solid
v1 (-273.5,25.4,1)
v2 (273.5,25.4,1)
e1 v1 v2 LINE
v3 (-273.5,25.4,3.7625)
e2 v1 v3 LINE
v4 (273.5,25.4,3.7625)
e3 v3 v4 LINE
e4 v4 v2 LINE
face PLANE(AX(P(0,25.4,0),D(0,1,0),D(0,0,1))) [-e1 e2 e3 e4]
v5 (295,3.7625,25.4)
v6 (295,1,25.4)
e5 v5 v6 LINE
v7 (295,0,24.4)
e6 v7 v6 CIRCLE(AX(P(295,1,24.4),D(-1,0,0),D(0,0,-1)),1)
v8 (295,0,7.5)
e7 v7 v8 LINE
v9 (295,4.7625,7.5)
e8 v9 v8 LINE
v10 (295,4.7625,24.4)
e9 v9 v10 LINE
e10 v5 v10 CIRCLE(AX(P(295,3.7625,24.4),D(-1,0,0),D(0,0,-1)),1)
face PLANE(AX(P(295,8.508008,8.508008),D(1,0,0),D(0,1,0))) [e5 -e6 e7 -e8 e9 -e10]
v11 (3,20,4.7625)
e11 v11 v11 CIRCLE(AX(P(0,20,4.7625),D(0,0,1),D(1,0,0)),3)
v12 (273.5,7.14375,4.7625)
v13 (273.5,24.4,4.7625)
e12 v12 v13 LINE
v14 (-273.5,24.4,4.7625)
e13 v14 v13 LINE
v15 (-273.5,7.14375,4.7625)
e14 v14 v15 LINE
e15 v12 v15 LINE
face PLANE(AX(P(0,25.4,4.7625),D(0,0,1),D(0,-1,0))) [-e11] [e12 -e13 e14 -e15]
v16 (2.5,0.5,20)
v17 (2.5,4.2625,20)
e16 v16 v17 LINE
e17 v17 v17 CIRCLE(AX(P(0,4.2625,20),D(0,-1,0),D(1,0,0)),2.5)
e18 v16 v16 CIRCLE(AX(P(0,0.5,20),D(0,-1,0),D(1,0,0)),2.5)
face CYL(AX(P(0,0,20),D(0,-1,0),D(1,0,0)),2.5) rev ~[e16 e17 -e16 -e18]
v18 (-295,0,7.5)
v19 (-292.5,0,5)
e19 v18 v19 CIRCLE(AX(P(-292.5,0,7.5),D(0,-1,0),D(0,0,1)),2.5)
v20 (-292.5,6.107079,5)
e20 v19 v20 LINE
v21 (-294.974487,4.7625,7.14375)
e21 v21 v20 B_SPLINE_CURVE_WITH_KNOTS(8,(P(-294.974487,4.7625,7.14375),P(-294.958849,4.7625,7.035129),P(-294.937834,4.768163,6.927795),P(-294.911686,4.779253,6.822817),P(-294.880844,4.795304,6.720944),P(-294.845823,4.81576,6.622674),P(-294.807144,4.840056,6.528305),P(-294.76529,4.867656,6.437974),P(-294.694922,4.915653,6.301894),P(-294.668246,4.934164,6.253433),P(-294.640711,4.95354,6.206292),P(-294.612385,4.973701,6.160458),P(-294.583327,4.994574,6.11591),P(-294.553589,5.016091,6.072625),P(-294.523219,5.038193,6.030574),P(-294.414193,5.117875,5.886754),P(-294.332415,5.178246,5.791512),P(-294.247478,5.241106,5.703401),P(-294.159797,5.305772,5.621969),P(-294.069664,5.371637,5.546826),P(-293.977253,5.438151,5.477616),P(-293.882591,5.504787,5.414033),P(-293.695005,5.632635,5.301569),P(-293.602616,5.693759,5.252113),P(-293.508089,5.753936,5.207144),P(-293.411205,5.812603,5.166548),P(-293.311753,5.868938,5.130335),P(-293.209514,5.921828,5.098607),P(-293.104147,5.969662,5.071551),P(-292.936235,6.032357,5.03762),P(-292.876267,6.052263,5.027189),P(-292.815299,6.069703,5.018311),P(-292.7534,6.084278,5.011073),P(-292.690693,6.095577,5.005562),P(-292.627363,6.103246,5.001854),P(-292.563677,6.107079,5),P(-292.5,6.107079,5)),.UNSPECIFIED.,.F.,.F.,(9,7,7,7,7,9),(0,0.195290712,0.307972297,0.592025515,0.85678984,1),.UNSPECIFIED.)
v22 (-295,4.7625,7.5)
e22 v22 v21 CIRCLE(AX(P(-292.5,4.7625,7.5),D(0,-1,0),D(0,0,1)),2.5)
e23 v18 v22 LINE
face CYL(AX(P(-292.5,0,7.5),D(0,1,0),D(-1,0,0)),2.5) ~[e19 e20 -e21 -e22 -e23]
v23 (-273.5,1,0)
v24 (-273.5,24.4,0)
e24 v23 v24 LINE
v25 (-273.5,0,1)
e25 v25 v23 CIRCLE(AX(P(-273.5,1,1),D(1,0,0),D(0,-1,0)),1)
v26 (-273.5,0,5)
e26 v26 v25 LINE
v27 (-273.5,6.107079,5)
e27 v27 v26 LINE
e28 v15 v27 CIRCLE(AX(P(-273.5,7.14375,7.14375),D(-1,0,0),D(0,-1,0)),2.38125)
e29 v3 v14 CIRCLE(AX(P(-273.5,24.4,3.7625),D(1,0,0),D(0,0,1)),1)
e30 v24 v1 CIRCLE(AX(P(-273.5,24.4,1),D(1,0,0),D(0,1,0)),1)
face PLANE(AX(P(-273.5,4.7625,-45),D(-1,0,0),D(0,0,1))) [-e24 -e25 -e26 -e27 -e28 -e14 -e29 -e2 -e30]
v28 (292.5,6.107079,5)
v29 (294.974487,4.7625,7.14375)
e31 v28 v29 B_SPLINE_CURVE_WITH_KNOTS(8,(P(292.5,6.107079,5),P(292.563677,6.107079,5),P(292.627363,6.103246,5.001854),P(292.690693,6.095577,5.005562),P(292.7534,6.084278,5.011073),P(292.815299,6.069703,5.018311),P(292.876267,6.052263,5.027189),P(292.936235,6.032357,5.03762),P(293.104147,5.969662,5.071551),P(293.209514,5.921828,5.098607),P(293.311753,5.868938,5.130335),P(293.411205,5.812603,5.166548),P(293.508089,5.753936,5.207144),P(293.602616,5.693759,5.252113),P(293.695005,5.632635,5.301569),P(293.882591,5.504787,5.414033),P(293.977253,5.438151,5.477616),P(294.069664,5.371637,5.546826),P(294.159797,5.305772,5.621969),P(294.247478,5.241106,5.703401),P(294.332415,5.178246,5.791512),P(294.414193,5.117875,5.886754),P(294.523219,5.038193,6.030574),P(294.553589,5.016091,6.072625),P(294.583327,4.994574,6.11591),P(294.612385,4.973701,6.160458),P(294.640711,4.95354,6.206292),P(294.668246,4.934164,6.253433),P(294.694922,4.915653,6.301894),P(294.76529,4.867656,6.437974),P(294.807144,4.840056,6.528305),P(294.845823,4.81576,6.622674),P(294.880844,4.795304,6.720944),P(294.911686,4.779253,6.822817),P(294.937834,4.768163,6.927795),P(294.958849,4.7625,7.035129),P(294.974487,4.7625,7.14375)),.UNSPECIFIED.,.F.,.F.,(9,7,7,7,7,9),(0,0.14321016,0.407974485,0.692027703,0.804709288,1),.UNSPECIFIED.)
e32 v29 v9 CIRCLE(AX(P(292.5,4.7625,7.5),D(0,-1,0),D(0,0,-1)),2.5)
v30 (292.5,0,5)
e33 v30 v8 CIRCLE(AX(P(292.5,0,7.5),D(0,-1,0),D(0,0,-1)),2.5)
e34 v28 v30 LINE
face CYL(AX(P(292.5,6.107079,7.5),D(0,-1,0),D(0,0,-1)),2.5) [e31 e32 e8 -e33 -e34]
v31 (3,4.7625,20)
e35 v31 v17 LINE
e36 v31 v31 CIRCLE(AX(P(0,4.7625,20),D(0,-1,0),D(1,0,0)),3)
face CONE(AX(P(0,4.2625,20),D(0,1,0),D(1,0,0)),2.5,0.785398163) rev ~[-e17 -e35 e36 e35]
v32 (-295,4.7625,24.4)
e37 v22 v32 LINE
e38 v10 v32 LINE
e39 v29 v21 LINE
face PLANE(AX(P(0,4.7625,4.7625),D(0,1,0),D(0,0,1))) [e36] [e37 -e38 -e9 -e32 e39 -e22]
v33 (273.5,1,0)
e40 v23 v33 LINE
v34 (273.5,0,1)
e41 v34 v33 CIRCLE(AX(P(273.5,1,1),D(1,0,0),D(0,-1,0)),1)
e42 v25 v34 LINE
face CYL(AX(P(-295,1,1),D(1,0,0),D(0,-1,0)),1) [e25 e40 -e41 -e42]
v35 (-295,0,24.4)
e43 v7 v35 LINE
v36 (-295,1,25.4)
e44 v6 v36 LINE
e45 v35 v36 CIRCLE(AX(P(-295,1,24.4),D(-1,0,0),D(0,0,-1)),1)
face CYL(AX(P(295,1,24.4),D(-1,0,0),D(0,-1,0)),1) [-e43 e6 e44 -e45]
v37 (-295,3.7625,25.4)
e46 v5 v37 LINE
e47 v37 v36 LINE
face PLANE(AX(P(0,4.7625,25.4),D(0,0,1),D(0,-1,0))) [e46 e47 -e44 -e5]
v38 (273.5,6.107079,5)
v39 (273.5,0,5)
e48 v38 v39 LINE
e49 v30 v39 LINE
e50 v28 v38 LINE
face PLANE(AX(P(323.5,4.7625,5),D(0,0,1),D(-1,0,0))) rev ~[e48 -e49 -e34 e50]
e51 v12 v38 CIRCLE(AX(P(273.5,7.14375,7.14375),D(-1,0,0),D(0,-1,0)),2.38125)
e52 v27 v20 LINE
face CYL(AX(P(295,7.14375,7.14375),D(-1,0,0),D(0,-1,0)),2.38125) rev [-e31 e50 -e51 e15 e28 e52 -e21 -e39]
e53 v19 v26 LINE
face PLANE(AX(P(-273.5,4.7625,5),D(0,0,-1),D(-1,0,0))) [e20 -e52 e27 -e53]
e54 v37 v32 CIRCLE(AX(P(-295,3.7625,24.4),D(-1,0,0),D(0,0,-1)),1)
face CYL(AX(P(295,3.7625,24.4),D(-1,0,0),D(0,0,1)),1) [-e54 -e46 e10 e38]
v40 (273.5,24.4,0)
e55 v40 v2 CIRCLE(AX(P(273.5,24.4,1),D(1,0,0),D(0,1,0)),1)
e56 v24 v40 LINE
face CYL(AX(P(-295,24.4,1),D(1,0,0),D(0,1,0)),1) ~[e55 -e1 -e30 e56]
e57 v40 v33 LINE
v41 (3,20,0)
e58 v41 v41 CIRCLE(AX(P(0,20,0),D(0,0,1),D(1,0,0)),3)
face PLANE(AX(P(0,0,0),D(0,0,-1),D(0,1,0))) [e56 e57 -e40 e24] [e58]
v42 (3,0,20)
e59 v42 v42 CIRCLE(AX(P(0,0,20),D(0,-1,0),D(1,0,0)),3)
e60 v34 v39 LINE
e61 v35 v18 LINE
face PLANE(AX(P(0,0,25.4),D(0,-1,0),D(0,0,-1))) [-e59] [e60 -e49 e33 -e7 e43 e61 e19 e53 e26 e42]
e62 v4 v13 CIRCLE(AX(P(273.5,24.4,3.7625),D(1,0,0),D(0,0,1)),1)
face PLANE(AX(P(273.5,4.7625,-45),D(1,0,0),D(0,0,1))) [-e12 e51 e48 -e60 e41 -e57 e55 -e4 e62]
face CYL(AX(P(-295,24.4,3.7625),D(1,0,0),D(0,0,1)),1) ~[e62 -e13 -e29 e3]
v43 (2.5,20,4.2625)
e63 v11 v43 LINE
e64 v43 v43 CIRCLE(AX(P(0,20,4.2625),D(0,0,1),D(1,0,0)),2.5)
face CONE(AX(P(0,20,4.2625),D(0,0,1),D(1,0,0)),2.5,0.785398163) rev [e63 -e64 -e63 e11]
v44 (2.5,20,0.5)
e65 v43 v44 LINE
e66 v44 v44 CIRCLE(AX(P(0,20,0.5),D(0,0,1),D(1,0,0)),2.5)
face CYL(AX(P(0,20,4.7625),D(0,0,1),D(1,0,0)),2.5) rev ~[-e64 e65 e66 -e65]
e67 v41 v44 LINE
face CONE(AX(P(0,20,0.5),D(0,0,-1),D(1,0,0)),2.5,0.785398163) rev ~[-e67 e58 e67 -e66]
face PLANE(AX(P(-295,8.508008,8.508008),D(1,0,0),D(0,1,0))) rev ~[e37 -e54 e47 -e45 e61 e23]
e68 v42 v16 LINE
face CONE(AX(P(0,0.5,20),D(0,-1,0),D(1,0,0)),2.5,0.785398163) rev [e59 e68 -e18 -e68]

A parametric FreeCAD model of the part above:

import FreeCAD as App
import Part
import Sketcher
from FreeCAD import Vector


def edges_at(feature, points):
    """Names of the edges that pass closest to the given points."""
    edges = feature.Shape.Edges
    near = lambda p: min(range(len(edges)), key=lambda i: edges[i].distToShape(Part.Vertex(*p))[0])
    return sorted({f"Edge{near(p) + 1}" for p in points})


def add_polygon(sketch, points):
    """Adds a closed chain of lines whose ends are joined by coincident constraints."""
    first, n = sketch.GeometryCount, len(points)
    for a, b in zip(points, points[1:] + points[:1]):
        sketch.addGeometry(Part.LineSegment(App.Vector(*a, 0), App.Vector(*b, 0)), False)
    for i in range(n):
        sketch.addConstraint(Sketcher.Constraint("Coincident", first + i, 2, first + (i + 1) % n, 1))

doc = App.newDocument("Part")
body = doc.addObject("PartDesign::Body", "Body")

sketch1 = body.newObject("Sketcher::SketchObject", "Sketch")
sketch1.AttachmentSupport = (doc.getObject("YZ_Plane"), [""])
sketch1.MapMode = "FlatFace"
add_polygon(sketch1, [(0, 25.4), (0, 0), (25.4, 0), (25.4, 4.8), (4.8, 4.8), (4.8, 25.4)])
sketch1.addConstraint(Sketcher.Constraint("Vertical", 0))
sketch1.addConstraint(Sketcher.Constraint("Horizontal", 1))
sketch1.addConstraint(Sketcher.Constraint("Vertical", 2))
sketch1.addConstraint(Sketcher.Constraint("Horizontal", 3))
sketch1.addConstraint(Sketcher.Constraint("Vertical", 4))
sketch1.addConstraint(Sketcher.Constraint("Horizontal", 5))
sketch1.addConstraint(Sketcher.Constraint("Coincident", 0, 2, -1, 1))
sketch1.addConstraint(Sketcher.Constraint("Equal", 1, 0))
sketch1.addConstraint(Sketcher.Constraint("Equal", 5, 2))
sketch1.addConstraint(Sketcher.Constraint("DistanceX", 1, 1, 1, 2, 25.4))
sketch1.addConstraint(Sketcher.Constraint("DistanceX", 3, 2, 3, 1, 20.6375))
pad1 = body.newObject("PartDesign::Pad", "Pad")
pad1.Profile = sketch1
pad1.Length = 590
pad1.Midplane = True
doc.recompute()

fillet = body.newObject("PartDesign::Fillet", "Fillet")
fillet.Base = (pad1, edges_at(pad1, [
    (0, 0, 25.4),
    (0, 4.763, 25.4),
    (0, 0, 0),
    (0, 25.4, 4.763),
    (0, 25.4, 0),
]))
fillet.Radius = 1
doc.recompute()

fillet2 = body.newObject("PartDesign::Fillet", "Fillet001")
fillet2.Base = (fillet, edges_at(fillet, [(0, 4.763, 4.763)]))
fillet2.Radius = 2.38125

sketch2 = body.newObject("Sketcher::SketchObject", "Sketch001")
sketch2.AttachmentSupport = (doc.getObject("XZ_Plane"), [""])
sketch2.MapMode = "FlatFace"
sketch2.AttachmentOffset = App.Placement(Vector(0, 0, -4.7625), App.Rotation())
add_polygon(sketch2, [(324, 5), (324, -45), (274, -45), (274, 5)])
add_polygon(sketch2, [(-274, 5), (-274, -45), (-324, -45), (-324, 5)])
sketch2.addConstraint(Sketcher.Constraint("Vertical", 0))
sketch2.addConstraint(Sketcher.Constraint("Horizontal", 1))
sketch2.addConstraint(Sketcher.Constraint("Vertical", 2))
sketch2.addConstraint(Sketcher.Constraint("Horizontal", 3))
sketch2.addConstraint(Sketcher.Constraint("Vertical", 4))
sketch2.addConstraint(Sketcher.Constraint("Horizontal", 5))
sketch2.addConstraint(Sketcher.Constraint("Vertical", 6))
sketch2.addConstraint(Sketcher.Constraint("Horizontal", 7))
sketch2.addConstraint(Sketcher.Constraint("Symmetric", 1, 2, 4, 2, -2))
sketch2.addConstraint(Sketcher.Constraint("Symmetric", 3, 2, 6, 2, -2))
sketch2.addConstraint(Sketcher.Constraint("Equal", 7, 0))
sketch2.addConstraint(Sketcher.Constraint("DistanceX", 1, 2, 1, 1, 50.0))
sketch2.addConstraint(Sketcher.Constraint("DistanceY", 0, 2, -1, 1, 45.0))
sketch2.addConstraint(Sketcher.Constraint("DistanceX", 4, 2, 1, 2, 547.0))
pocket1 = body.newObject("PartDesign::Pocket", "Pocket")
pocket1.Profile = sketch2
pocket1.Length = 50
pocket1.Midplane = True
doc.recompute()

fillet3 = body.newObject("PartDesign::Fillet", "Fillet002")
fillet3.Base = (pocket1, edges_at(pocket1, [(295, 3.054, 5), (-295, 3.054, 5)]))
fillet3.Radius = 2.5

sketch3 = body.newObject("Sketcher::SketchObject", "Sketch002")
sketch3.AttachmentSupport = (doc.getObject("XY_Plane"), [""])
sketch3.MapMode = "FlatFace"
sketch3.AttachmentOffset = App.Placement(Vector(0, 0, 4.7625), App.Rotation())
sketch3.addGeometry(Part.Circle(Vector(0, 20, 0), Vector(0, 0, 1), 2.5), False)
sketch3.addConstraint(Sketcher.Constraint("PointOnObject", 0, 3, -2))
sketch3.addConstraint(Sketcher.Constraint("Diameter", 0, 5.0))
sketch3.addConstraint(Sketcher.Constraint("DistanceY", -1, 1, 0, 3, 20.0))
pocket2 = body.newObject("PartDesign::Pocket", "Pocket001")
pocket2.Profile = sketch3
pocket2.Length = 25
doc.recompute()

chamfer = body.newObject("PartDesign::Chamfer", "Chamfer")
chamfer.Base = (pocket2, edges_at(pocket2, [(-2.5, 20, 4.763), (2.5, 20, 2.381), (-2.5, 20, 0)]))
chamfer.Size = 0.5

sketch4 = body.newObject("Sketcher::SketchObject", "Sketch003")
sketch4.AttachmentSupport = (doc.getObject("XZ_Plane"), [""])
sketch4.MapMode = "FlatFace"
sketch4.addGeometry(Part.Circle(Vector(0, 20, 0), Vector(0, 0, 1), 2.5), False)
sketch4.addConstraint(Sketcher.Constraint("PointOnObject", 0, 3, -2))
sketch4.addConstraint(Sketcher.Constraint("Diameter", 0, 5.0))
sketch4.addConstraint(Sketcher.Constraint("DistanceY", -1, 1, 0, 3, 20.0))
pocket3 = body.newObject("PartDesign::Pocket", "Pocket002")
pocket3.Profile = sketch4
pocket3.Length = 25
doc.recompute()

chamfer2 = body.newObject("PartDesign::Chamfer", "Chamfer001")
chamfer2.Base = (pocket3, edges_at(pocket3, [(-2.5, 0, 20), (2.5, 2.381, 20), (-2.5, 4.763, 20)]))
chamfer2.Size = 0.5

doc.recompute()
